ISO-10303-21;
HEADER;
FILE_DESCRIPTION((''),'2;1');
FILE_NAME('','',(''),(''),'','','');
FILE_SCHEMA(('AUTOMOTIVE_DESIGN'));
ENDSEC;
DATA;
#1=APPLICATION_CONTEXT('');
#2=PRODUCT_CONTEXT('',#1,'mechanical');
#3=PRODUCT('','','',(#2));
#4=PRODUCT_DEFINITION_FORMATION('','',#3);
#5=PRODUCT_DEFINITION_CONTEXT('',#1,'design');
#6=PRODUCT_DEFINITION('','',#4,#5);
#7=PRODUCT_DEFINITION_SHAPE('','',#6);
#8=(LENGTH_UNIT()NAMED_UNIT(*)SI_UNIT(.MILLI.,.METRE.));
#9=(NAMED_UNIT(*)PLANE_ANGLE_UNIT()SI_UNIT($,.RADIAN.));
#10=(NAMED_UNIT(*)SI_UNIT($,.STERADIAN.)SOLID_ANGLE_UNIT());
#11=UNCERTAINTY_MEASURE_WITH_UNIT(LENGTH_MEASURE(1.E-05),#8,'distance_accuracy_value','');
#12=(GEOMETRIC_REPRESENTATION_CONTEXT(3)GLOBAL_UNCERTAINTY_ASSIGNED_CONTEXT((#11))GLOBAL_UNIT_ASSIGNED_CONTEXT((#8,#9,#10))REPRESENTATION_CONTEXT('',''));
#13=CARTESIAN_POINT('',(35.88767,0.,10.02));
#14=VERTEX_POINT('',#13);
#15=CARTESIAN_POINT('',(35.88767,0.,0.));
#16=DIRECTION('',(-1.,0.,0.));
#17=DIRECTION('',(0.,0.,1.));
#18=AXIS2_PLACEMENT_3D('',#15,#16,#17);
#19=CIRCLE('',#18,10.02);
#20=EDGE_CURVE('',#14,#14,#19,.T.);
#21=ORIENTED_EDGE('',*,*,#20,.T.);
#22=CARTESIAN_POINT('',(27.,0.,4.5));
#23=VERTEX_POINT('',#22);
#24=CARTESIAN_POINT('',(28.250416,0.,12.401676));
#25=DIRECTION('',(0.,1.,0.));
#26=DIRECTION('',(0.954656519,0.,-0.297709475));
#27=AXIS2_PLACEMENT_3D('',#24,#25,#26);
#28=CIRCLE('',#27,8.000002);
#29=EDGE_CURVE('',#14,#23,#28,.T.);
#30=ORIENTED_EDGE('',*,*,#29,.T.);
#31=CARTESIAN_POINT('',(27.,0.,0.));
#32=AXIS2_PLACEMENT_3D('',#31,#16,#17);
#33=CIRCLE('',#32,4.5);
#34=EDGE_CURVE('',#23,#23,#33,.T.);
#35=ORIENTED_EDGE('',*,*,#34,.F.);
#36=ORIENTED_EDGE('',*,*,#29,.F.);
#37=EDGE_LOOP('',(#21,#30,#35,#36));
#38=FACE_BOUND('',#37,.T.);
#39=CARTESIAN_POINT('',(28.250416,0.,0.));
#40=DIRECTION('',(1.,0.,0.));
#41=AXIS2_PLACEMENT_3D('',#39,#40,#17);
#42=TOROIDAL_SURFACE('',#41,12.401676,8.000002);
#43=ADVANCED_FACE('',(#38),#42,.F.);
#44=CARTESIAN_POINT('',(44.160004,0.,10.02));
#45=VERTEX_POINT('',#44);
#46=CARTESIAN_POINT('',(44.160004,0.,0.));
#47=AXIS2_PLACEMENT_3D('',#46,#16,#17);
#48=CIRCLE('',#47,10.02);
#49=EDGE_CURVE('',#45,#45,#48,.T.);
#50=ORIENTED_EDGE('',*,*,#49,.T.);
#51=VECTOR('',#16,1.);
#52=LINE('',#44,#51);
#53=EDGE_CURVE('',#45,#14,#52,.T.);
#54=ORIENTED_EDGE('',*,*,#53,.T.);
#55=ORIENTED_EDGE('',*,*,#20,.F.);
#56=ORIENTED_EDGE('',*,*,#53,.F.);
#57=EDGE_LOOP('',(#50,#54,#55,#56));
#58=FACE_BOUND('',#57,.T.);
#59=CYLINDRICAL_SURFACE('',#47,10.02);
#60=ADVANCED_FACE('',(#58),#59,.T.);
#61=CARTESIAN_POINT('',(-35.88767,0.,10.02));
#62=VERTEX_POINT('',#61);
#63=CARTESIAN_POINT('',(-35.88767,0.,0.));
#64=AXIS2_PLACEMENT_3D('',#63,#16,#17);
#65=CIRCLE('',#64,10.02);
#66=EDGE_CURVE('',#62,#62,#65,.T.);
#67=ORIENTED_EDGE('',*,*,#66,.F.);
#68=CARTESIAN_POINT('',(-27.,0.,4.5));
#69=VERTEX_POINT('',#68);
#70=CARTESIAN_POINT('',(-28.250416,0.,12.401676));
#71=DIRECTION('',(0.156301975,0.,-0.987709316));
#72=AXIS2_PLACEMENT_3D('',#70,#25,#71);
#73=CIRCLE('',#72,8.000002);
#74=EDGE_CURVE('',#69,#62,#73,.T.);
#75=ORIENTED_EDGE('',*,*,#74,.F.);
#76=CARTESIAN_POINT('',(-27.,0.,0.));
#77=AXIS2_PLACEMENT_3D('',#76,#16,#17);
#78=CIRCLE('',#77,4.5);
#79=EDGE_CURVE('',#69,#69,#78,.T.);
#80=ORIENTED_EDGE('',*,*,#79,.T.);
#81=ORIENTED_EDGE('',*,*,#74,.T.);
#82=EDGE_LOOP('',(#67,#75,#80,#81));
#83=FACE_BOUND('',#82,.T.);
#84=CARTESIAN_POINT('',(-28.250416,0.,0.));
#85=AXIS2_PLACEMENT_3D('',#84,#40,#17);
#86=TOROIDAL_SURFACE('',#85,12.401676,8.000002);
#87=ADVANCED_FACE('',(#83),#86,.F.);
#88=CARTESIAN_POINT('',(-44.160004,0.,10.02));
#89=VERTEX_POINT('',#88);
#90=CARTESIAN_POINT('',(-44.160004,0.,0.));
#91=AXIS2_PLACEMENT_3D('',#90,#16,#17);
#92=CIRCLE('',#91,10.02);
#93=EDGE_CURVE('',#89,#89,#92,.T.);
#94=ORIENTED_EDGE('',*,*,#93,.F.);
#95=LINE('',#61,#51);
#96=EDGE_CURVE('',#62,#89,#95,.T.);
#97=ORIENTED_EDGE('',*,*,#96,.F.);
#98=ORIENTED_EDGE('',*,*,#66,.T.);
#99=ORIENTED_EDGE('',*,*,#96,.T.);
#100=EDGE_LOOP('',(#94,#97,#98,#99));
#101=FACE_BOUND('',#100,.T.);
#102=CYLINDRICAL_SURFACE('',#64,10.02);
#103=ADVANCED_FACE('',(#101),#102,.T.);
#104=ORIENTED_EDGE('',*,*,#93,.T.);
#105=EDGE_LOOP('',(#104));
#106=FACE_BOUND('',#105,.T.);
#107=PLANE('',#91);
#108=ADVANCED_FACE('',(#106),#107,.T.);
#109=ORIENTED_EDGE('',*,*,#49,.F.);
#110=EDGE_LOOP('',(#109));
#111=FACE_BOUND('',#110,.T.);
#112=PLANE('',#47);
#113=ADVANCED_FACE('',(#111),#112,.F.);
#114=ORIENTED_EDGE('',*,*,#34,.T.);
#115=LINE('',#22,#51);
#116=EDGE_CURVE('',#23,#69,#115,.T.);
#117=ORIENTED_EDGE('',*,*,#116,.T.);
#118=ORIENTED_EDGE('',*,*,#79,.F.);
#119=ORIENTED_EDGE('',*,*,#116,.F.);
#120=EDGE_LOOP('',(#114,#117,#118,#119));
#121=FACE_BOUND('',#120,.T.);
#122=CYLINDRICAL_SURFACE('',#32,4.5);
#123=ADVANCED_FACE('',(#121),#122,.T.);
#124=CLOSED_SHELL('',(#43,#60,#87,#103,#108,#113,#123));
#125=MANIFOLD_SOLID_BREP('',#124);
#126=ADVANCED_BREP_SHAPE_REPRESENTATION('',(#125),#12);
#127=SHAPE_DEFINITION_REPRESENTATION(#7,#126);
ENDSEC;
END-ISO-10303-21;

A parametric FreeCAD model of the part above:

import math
import FreeCAD as App
import Part
import Sketcher

V = App.Vector
Q = App.Units.Quantity

doc = App.newDocument("Part")
body = doc.addObject("PartDesign::Body", "Body")

# Sketch on XZ plane
sketch1 = doc.addObject("Sketcher::SketchObject", "Sketch")
body.addObject(sketch1)
sketch1.AttachmentSupport = (doc.XZ_Plane, [""])
sketch1.MapMode = "FlatFace"
sketch1.addGeometry(Part.LineSegment(V(-44, 0, 0), V(44, 0, 0)), False)
sketch1.addGeometry(Part.LineSegment(V(44, 0, 0), V(44, 10, 0)), False)
sketch1.addGeometry(Part.LineSegment(V(44, 10, 0), V(36, 10, 0)), False)
sketch1.addGeometry(Part.ArcOfCircle(Part.Circle(V(28, 12, 0), V(0, 0, 1), 8), math.radians(-99), math.radians(-17)), False)
sketch1.addGeometry(Part.LineSegment(V(27, 4, 0), V(-27, 4, 0)), False)
sketch1.addGeometry(Part.ArcOfCircle(Part.Circle(V(-28, 12, 0), V(0, 0, 1), 8), math.radians(-163), math.radians(-81)), False)
sketch1.addGeometry(Part.LineSegment(V(-36, 10, 0), V(-44, 10, 0)), False)
sketch1.addGeometry(Part.LineSegment(V(-44, 10, 0), V(-44, 0, 0)), False)
sketch1.addConstraint(Sketcher.Constraint("Coincident", 0, 2, 1, 1))
sketch1.addConstraint(Sketcher.Constraint("Coincident", 1, 2, 2, 1))
sketch1.addConstraint(Sketcher.Constraint("Coincident", 2, 2, 3, 2))
sketch1.addConstraint(Sketcher.Constraint("Coincident", 3, 1, 4, 1))
sketch1.addConstraint(Sketcher.Constraint("Coincident", 4, 2, 5, 2))
sketch1.addConstraint(Sketcher.Constraint("Coincident", 5, 1, 6, 1))
sketch1.addConstraint(Sketcher.Constraint("Coincident", 6, 2, 7, 1))
sketch1.addConstraint(Sketcher.Constraint("Coincident", 7, 2, 0, 1))
sketch1.addConstraint(Sketcher.Constraint("Horizontal", 0))
sketch1.addConstraint(Sketcher.Constraint("Vertical", 1))
sketch1.addConstraint(Sketcher.Constraint("Horizontal", 2))
sketch1.addConstraint(Sketcher.Constraint("Horizontal", 4))
sketch1.addConstraint(Sketcher.Constraint("Horizontal", 6))
sketch1.addConstraint(Sketcher.Constraint("Vertical", 7))
sketch1.addConstraint(Sketcher.Constraint("Equal", 3, 5))
sketch1.addConstraint(Sketcher.Constraint("Symmetric", 0, 2, 7, 2, -1, 1))
sketch1.addConstraint(Sketcher.Constraint("Symmetric", 3, 3, 5, 3, -2))
sketch1.addConstraint(Sketcher.Constraint("Horizontal", 2, 2, 5, 1))
sketch1.addConstraint(Sketcher.Constraint("Radius", 3, Q("8.000002 mm")))
sketch1.addConstraint(Sketcher.Constraint("DistanceX", 4, 2, 4, 1, Q("54 mm")))
sketch1.addConstraint(Sketcher.Constraint("DistanceY", 1, 1, 1, 2, Q("10.02 mm")))
sketch1.addConstraint(Sketcher.Constraint("DistanceY", -1, 1, 3, 1, Q("4.5 mm")))
sketch1.addConstraint(Sketcher.Constraint("DistanceX", 0, 1, 0, 2, Q("88.320008 mm")))
sketch1.addConstraint(Sketcher.Constraint("DistanceX", 2, 2, 2, 1, Q("8.272334 mm")))
revolution = doc.addObject("PartDesign::Revolution", "Revolution")
body.addObject(revolution)
revolution.Profile = sketch1
revolution.ReferenceAxis = (sketch1, ["H_Axis"])
revolution.Angle = 360

doc.recompute()
